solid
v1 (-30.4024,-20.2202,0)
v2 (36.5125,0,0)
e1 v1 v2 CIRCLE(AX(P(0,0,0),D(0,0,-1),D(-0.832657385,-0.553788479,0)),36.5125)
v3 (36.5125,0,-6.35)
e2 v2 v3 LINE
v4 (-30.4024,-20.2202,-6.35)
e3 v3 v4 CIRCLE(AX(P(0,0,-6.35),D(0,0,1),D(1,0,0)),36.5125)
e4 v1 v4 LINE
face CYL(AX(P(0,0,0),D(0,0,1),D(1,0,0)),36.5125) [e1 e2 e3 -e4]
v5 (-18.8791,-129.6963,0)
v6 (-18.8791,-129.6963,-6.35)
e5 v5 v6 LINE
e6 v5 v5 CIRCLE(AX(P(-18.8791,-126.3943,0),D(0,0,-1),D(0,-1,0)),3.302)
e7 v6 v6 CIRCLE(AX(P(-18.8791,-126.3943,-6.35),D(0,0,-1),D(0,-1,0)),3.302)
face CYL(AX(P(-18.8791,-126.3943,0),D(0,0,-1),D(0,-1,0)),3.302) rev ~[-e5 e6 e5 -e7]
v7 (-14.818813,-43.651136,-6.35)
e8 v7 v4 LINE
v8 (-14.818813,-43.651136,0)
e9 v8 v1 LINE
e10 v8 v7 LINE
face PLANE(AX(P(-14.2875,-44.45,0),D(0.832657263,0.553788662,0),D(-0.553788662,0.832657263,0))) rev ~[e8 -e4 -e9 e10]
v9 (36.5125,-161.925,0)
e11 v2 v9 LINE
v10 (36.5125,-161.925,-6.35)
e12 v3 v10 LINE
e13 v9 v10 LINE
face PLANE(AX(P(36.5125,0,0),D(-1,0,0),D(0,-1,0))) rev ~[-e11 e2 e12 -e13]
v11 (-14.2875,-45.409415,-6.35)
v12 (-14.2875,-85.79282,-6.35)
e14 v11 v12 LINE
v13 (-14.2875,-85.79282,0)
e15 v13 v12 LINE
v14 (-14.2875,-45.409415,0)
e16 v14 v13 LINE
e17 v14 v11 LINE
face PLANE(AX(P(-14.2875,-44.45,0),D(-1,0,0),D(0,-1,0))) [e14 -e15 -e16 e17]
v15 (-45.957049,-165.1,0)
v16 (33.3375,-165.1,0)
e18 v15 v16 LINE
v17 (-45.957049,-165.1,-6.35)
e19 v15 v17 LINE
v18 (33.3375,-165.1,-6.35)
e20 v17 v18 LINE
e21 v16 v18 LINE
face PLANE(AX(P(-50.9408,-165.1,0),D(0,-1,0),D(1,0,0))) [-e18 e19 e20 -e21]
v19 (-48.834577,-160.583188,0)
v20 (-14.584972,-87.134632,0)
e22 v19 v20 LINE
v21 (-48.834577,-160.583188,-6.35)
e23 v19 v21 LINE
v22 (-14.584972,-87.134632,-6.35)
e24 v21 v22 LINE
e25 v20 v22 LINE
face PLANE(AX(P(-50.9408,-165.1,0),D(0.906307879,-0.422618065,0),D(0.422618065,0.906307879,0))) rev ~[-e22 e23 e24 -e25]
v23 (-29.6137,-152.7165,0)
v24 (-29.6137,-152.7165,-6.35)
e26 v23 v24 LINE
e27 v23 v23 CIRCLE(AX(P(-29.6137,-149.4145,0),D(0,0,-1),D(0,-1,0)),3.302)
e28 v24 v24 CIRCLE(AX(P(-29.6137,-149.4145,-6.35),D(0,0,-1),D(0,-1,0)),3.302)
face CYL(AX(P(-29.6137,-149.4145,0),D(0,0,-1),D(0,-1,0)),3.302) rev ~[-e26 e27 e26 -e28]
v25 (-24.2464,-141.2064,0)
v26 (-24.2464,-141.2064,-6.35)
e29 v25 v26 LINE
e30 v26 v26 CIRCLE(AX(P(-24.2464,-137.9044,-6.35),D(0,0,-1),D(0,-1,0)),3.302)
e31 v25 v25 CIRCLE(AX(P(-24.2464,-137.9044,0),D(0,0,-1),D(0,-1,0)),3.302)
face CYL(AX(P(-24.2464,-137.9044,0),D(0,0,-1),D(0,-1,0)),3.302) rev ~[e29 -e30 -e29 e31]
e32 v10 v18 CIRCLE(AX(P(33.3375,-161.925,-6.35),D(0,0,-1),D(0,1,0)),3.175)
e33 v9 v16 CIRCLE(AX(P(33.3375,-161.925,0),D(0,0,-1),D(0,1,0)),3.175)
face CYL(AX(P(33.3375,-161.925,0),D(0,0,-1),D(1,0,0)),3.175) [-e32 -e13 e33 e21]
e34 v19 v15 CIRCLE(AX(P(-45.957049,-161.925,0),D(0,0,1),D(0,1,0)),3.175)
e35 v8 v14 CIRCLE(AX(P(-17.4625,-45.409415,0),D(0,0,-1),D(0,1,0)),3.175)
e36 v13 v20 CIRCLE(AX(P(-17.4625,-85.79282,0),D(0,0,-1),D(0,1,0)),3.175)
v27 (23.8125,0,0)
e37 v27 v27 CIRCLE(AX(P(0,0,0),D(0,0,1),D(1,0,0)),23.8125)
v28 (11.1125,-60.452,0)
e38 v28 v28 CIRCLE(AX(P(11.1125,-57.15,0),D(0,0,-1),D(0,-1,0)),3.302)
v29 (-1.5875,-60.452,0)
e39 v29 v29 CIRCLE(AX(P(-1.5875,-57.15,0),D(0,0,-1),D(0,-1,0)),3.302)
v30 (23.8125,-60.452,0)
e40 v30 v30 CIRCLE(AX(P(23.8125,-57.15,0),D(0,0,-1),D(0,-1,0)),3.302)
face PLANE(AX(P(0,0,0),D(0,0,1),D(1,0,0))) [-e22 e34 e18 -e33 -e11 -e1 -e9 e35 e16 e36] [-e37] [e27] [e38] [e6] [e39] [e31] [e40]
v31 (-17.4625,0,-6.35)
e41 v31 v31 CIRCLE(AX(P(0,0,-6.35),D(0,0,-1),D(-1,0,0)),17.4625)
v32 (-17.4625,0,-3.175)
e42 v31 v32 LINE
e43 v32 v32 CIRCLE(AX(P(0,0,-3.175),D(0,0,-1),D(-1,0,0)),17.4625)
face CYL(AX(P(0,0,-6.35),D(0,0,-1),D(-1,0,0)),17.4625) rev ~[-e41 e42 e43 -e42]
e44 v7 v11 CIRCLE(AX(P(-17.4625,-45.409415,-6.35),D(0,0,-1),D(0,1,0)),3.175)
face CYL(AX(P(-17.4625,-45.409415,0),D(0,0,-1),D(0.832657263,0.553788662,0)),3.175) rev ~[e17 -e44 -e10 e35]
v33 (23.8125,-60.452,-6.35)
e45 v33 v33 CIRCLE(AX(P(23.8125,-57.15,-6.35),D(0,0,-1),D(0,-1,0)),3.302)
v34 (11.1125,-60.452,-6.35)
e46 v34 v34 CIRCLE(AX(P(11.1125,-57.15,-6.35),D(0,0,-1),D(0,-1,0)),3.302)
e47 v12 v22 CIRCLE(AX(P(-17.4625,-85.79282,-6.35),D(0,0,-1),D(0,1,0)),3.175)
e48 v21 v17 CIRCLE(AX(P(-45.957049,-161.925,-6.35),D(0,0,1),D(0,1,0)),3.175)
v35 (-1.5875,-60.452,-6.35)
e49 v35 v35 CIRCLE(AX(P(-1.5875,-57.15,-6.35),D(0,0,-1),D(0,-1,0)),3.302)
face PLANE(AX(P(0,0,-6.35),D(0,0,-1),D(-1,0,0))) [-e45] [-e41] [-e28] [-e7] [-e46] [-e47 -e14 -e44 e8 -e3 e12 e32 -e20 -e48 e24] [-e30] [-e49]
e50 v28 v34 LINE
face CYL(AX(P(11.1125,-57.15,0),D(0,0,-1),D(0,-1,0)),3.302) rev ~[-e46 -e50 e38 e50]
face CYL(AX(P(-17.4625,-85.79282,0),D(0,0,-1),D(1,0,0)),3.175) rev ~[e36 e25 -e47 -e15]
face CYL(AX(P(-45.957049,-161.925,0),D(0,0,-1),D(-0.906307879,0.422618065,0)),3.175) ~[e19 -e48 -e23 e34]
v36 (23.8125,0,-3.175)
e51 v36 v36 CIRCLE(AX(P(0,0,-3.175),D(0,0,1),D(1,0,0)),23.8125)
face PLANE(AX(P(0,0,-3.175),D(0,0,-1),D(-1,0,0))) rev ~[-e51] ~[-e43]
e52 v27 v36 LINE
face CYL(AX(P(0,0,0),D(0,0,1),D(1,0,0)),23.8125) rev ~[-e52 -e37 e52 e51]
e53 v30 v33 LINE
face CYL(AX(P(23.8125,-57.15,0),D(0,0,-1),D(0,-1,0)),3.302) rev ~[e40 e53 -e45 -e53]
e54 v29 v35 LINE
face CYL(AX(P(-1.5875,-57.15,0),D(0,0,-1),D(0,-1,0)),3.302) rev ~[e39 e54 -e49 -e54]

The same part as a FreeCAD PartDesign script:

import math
import FreeCAD as App
import Part
import Sketcher
Q = App.Units.Quantity


def edges_at(feature, points):
    """Names of the edges that pass closest to the given points."""
    edges = feature.Shape.Edges
    near = lambda p: min(range(len(edges)), key=lambda i: edges[i].distToShape(Part.Vertex(*p))[0])
    return sorted({f"Edge{near(p) + 1}" for p in points})

doc = App.newDocument("Part")
body = doc.addObject("PartDesign::Body", "Body")

# Sketch on XY plane
sketch1 = body.newObject("Sketcher::SketchObject", "Sketch")
sketch1.AttachmentSupport = (doc.getObject("XY_Plane"), [""])
sketch1.MapMode = "FlatFace"
sketch1.addGeometry([
    Part.LineSegment(App.Vector(-30.4024, -20.2202, 0), App.Vector(-14.2875, -44.45, 0)),  # 0
    Part.LineSegment(App.Vector(-14.2875, -44.45, 0), App.Vector(-14.2875, -86.4967, 0)),  # 1
    Part.LineSegment(App.Vector(-14.2875, -86.4967, 0), App.Vector(-50.9408, -165.1, 0)),  # 2
    Part.LineSegment(App.Vector(-50.9408, -165.1, 0), App.Vector(36.5125, -165.1, 0)),  # 3
    Part.LineSegment(App.Vector(36.5125, -165.1, 0), App.Vector(36.5125, 0, 0)),  # 4
    Part.ArcOfCircle(Part.Circle(App.Vector(0, 0, 0), App.Vector(0, 0, 1), 36.5125), math.radians(0), math.radians(213.627309)),  # 5
    Part.Circle(App.Vector(0, 0, 0), App.Vector(0, 0, 1), 23.8125),  # 6
], False)
sketch1.addConstraint([
    Sketcher.Constraint("Coincident", 0, 2, 1, 1),
    Sketcher.Constraint("Coincident", 1, 2, 2, 1),
    Sketcher.Constraint("Coincident", 2, 2, 3, 1),
    Sketcher.Constraint("Coincident", 3, 2, 4, 1),
    Sketcher.Constraint("Tangent", 4, 2, 5, 1),
    Sketcher.Constraint("Tangent", 5, 2, 0, 1),
    Sketcher.Constraint("Vertical", 1),
    Sketcher.Constraint("Horizontal", 3),
    Sketcher.Constraint("Vertical", 4),
    Sketcher.Constraint("Coincident", 5, 3, -1, 1),
    Sketcher.Constraint("Coincident", 6, 3, -1, 1),
    Sketcher.Constraint("Diameter", 6, Q("1.875 in")),
    Sketcher.Constraint("DistanceY", 4, 1, 4, 2, Q("6.5 in")),
    Sketcher.Constraint("DistanceX", 1, 2, 3, 2, Q("2 in")),
    Sketcher.Constraint("Angle", 2, Q("-115 deg")),
    Sketcher.Constraint("Radius", 5, Q("1.4375 in")),
    Sketcher.Constraint("DistanceY", 0, 2, -1, 1, Q("1.75 in")),
    Sketcher.Constraint("DistanceX", 3, 1, 3, 2, Q("87.4533 mm")),
])
pad1 = body.newObject("PartDesign::Pad", "Pad")
pad1.Profile = sketch1
pad1.Length = Q("0.25 in")
pad1.Reversed = True

# Sketch on XY plane
sketch2 = body.newObject("Sketcher::SketchObject", "Sketch001")
sketch2.AttachmentSupport = (doc.getObject("XY_Plane"), [""])
sketch2.MapMode = "FlatFace"
sketch2.addGeometry([
    Part.Circle(App.Vector(23.8125, -57.15, 0), App.Vector(0, 0, 1), 3.302),  # 0
    Part.Circle(App.Vector(11.1125, -57.15, 0), App.Vector(0, 0, 1), 3.302),  # 1
    Part.Circle(App.Vector(-1.5875, -57.15, 0), App.Vector(0, 0, 1), 3.302),  # 2
    Part.Circle(App.Vector(-18.8791, -126.3943, 0), App.Vector(0, 0, 1), 3.302),  # 3
    Part.Circle(App.Vector(-24.2464, -137.9044, 0), App.Vector(0, 0, 1), 3.302),  # 4
    Part.Circle(App.Vector(-29.6137, -149.4145, 0), App.Vector(0, 0, 1), 3.302),  # 5
], False)
sketch2.addConstraint([
    Sketcher.Constraint("Equal", 0, 1),
    Sketcher.Constraint("Equal", 1, 2),
    Sketcher.Constraint("Equal", 2, 3),
    Sketcher.Constraint("Equal", 3, 4),
    Sketcher.Constraint("Equal", 4, 5),
    Sketcher.Constraint("Horizontal", 0, 3, 1, 3),
    Sketcher.Constraint("Horizontal", 1, 3, 2, 3),
    Sketcher.Constraint("Diameter", 0, Q("0.26 in")),
    Sketcher.Constraint("DistanceX", 2, 3, 0, 3, Q("1 in")),
    Sketcher.Constraint("DistanceX", 1, 3, 0, 3, Q("0.5 in")),
    Sketcher.Constraint("DistanceY", 0, 3, -1, 1, Q("2.25 in")),
    Sketcher.Constraint("DistanceX", -1, 1, 0, 3, Q("0.9375 in")),
    Sketcher.Constraint("DistanceY", 4, 3, -1, 1, Q("5.4293 in")),
    Sketcher.Constraint("DistanceX", 5, 3, -1, 1, Q("1.1659 in")),
    Sketcher.Constraint("DistanceX", 4, 3, 3, 3, Q("0.2113 in")),
    Sketcher.Constraint("DistanceX", 5, 3, 4, 3, Q("0.2113 in")),
    Sketcher.Constraint("DistanceY", 5, 3, 3, 3, Q("0.9063 in")),
    Sketcher.Constraint("DistanceY", 3, 3, -1, 1, Q("126.3943 mm")),
])
doc.recompute()
hole = body.newObject("PartDesign::Hole", "Hole")
hole.Profile = sketch2
hole.ThreadType = "None"
hole.Diameter = Q("0.26 in")
hole.DepthType = "ThroughAll"

# Sketch on XY plane
sketch3 = body.newObject("Sketcher::SketchObject", "Sketch002")
sketch3.AttachmentSupport = (doc.getObject("XY_Plane"), [""])
sketch3.MapMode = "FlatFace"
sketch3.AttachmentOffset = App.Placement(App.Vector(0, 0, -0.25 * 25.4), App.Rotation())
sketch3.addGeometry([
    Part.Circle(App.Vector(0, 0, 0), App.Vector(0, 0, 1), 23.8125),
    Part.Circle(App.Vector(0, 0, 0), App.Vector(0, 0, 1), 17.4625),
], False)
sketch3.addConstraint([
    Sketcher.Constraint("Coincident", 0, 3, -1, 1),
    Sketcher.Constraint("Coincident", 1, 3, -1, 1),
    Sketcher.Constraint("Diameter", 0, Q("1.875 in")),
    Sketcher.Constraint("Diameter", 1, Q("1.375 in")),
])
pad2 = body.newObject("PartDesign::Pad", "Pad001")
pad2.Profile = sketch3
pad2.Length = Q("0.125 in")
doc.recompute()

fillet = body.newObject("PartDesign::Fillet", "Fillet")
fillet.Base = (pad2, edges_at(pad2, [
    (-14.287, -44.45, -3.175),
    (-14.287, -86.497, -3.175),
    (-50.941, -165.1, -3.175),
    (36.513, -165.1, -3.175),
]))
fillet.Radius = Q("0.125 in")

doc.recompute()
